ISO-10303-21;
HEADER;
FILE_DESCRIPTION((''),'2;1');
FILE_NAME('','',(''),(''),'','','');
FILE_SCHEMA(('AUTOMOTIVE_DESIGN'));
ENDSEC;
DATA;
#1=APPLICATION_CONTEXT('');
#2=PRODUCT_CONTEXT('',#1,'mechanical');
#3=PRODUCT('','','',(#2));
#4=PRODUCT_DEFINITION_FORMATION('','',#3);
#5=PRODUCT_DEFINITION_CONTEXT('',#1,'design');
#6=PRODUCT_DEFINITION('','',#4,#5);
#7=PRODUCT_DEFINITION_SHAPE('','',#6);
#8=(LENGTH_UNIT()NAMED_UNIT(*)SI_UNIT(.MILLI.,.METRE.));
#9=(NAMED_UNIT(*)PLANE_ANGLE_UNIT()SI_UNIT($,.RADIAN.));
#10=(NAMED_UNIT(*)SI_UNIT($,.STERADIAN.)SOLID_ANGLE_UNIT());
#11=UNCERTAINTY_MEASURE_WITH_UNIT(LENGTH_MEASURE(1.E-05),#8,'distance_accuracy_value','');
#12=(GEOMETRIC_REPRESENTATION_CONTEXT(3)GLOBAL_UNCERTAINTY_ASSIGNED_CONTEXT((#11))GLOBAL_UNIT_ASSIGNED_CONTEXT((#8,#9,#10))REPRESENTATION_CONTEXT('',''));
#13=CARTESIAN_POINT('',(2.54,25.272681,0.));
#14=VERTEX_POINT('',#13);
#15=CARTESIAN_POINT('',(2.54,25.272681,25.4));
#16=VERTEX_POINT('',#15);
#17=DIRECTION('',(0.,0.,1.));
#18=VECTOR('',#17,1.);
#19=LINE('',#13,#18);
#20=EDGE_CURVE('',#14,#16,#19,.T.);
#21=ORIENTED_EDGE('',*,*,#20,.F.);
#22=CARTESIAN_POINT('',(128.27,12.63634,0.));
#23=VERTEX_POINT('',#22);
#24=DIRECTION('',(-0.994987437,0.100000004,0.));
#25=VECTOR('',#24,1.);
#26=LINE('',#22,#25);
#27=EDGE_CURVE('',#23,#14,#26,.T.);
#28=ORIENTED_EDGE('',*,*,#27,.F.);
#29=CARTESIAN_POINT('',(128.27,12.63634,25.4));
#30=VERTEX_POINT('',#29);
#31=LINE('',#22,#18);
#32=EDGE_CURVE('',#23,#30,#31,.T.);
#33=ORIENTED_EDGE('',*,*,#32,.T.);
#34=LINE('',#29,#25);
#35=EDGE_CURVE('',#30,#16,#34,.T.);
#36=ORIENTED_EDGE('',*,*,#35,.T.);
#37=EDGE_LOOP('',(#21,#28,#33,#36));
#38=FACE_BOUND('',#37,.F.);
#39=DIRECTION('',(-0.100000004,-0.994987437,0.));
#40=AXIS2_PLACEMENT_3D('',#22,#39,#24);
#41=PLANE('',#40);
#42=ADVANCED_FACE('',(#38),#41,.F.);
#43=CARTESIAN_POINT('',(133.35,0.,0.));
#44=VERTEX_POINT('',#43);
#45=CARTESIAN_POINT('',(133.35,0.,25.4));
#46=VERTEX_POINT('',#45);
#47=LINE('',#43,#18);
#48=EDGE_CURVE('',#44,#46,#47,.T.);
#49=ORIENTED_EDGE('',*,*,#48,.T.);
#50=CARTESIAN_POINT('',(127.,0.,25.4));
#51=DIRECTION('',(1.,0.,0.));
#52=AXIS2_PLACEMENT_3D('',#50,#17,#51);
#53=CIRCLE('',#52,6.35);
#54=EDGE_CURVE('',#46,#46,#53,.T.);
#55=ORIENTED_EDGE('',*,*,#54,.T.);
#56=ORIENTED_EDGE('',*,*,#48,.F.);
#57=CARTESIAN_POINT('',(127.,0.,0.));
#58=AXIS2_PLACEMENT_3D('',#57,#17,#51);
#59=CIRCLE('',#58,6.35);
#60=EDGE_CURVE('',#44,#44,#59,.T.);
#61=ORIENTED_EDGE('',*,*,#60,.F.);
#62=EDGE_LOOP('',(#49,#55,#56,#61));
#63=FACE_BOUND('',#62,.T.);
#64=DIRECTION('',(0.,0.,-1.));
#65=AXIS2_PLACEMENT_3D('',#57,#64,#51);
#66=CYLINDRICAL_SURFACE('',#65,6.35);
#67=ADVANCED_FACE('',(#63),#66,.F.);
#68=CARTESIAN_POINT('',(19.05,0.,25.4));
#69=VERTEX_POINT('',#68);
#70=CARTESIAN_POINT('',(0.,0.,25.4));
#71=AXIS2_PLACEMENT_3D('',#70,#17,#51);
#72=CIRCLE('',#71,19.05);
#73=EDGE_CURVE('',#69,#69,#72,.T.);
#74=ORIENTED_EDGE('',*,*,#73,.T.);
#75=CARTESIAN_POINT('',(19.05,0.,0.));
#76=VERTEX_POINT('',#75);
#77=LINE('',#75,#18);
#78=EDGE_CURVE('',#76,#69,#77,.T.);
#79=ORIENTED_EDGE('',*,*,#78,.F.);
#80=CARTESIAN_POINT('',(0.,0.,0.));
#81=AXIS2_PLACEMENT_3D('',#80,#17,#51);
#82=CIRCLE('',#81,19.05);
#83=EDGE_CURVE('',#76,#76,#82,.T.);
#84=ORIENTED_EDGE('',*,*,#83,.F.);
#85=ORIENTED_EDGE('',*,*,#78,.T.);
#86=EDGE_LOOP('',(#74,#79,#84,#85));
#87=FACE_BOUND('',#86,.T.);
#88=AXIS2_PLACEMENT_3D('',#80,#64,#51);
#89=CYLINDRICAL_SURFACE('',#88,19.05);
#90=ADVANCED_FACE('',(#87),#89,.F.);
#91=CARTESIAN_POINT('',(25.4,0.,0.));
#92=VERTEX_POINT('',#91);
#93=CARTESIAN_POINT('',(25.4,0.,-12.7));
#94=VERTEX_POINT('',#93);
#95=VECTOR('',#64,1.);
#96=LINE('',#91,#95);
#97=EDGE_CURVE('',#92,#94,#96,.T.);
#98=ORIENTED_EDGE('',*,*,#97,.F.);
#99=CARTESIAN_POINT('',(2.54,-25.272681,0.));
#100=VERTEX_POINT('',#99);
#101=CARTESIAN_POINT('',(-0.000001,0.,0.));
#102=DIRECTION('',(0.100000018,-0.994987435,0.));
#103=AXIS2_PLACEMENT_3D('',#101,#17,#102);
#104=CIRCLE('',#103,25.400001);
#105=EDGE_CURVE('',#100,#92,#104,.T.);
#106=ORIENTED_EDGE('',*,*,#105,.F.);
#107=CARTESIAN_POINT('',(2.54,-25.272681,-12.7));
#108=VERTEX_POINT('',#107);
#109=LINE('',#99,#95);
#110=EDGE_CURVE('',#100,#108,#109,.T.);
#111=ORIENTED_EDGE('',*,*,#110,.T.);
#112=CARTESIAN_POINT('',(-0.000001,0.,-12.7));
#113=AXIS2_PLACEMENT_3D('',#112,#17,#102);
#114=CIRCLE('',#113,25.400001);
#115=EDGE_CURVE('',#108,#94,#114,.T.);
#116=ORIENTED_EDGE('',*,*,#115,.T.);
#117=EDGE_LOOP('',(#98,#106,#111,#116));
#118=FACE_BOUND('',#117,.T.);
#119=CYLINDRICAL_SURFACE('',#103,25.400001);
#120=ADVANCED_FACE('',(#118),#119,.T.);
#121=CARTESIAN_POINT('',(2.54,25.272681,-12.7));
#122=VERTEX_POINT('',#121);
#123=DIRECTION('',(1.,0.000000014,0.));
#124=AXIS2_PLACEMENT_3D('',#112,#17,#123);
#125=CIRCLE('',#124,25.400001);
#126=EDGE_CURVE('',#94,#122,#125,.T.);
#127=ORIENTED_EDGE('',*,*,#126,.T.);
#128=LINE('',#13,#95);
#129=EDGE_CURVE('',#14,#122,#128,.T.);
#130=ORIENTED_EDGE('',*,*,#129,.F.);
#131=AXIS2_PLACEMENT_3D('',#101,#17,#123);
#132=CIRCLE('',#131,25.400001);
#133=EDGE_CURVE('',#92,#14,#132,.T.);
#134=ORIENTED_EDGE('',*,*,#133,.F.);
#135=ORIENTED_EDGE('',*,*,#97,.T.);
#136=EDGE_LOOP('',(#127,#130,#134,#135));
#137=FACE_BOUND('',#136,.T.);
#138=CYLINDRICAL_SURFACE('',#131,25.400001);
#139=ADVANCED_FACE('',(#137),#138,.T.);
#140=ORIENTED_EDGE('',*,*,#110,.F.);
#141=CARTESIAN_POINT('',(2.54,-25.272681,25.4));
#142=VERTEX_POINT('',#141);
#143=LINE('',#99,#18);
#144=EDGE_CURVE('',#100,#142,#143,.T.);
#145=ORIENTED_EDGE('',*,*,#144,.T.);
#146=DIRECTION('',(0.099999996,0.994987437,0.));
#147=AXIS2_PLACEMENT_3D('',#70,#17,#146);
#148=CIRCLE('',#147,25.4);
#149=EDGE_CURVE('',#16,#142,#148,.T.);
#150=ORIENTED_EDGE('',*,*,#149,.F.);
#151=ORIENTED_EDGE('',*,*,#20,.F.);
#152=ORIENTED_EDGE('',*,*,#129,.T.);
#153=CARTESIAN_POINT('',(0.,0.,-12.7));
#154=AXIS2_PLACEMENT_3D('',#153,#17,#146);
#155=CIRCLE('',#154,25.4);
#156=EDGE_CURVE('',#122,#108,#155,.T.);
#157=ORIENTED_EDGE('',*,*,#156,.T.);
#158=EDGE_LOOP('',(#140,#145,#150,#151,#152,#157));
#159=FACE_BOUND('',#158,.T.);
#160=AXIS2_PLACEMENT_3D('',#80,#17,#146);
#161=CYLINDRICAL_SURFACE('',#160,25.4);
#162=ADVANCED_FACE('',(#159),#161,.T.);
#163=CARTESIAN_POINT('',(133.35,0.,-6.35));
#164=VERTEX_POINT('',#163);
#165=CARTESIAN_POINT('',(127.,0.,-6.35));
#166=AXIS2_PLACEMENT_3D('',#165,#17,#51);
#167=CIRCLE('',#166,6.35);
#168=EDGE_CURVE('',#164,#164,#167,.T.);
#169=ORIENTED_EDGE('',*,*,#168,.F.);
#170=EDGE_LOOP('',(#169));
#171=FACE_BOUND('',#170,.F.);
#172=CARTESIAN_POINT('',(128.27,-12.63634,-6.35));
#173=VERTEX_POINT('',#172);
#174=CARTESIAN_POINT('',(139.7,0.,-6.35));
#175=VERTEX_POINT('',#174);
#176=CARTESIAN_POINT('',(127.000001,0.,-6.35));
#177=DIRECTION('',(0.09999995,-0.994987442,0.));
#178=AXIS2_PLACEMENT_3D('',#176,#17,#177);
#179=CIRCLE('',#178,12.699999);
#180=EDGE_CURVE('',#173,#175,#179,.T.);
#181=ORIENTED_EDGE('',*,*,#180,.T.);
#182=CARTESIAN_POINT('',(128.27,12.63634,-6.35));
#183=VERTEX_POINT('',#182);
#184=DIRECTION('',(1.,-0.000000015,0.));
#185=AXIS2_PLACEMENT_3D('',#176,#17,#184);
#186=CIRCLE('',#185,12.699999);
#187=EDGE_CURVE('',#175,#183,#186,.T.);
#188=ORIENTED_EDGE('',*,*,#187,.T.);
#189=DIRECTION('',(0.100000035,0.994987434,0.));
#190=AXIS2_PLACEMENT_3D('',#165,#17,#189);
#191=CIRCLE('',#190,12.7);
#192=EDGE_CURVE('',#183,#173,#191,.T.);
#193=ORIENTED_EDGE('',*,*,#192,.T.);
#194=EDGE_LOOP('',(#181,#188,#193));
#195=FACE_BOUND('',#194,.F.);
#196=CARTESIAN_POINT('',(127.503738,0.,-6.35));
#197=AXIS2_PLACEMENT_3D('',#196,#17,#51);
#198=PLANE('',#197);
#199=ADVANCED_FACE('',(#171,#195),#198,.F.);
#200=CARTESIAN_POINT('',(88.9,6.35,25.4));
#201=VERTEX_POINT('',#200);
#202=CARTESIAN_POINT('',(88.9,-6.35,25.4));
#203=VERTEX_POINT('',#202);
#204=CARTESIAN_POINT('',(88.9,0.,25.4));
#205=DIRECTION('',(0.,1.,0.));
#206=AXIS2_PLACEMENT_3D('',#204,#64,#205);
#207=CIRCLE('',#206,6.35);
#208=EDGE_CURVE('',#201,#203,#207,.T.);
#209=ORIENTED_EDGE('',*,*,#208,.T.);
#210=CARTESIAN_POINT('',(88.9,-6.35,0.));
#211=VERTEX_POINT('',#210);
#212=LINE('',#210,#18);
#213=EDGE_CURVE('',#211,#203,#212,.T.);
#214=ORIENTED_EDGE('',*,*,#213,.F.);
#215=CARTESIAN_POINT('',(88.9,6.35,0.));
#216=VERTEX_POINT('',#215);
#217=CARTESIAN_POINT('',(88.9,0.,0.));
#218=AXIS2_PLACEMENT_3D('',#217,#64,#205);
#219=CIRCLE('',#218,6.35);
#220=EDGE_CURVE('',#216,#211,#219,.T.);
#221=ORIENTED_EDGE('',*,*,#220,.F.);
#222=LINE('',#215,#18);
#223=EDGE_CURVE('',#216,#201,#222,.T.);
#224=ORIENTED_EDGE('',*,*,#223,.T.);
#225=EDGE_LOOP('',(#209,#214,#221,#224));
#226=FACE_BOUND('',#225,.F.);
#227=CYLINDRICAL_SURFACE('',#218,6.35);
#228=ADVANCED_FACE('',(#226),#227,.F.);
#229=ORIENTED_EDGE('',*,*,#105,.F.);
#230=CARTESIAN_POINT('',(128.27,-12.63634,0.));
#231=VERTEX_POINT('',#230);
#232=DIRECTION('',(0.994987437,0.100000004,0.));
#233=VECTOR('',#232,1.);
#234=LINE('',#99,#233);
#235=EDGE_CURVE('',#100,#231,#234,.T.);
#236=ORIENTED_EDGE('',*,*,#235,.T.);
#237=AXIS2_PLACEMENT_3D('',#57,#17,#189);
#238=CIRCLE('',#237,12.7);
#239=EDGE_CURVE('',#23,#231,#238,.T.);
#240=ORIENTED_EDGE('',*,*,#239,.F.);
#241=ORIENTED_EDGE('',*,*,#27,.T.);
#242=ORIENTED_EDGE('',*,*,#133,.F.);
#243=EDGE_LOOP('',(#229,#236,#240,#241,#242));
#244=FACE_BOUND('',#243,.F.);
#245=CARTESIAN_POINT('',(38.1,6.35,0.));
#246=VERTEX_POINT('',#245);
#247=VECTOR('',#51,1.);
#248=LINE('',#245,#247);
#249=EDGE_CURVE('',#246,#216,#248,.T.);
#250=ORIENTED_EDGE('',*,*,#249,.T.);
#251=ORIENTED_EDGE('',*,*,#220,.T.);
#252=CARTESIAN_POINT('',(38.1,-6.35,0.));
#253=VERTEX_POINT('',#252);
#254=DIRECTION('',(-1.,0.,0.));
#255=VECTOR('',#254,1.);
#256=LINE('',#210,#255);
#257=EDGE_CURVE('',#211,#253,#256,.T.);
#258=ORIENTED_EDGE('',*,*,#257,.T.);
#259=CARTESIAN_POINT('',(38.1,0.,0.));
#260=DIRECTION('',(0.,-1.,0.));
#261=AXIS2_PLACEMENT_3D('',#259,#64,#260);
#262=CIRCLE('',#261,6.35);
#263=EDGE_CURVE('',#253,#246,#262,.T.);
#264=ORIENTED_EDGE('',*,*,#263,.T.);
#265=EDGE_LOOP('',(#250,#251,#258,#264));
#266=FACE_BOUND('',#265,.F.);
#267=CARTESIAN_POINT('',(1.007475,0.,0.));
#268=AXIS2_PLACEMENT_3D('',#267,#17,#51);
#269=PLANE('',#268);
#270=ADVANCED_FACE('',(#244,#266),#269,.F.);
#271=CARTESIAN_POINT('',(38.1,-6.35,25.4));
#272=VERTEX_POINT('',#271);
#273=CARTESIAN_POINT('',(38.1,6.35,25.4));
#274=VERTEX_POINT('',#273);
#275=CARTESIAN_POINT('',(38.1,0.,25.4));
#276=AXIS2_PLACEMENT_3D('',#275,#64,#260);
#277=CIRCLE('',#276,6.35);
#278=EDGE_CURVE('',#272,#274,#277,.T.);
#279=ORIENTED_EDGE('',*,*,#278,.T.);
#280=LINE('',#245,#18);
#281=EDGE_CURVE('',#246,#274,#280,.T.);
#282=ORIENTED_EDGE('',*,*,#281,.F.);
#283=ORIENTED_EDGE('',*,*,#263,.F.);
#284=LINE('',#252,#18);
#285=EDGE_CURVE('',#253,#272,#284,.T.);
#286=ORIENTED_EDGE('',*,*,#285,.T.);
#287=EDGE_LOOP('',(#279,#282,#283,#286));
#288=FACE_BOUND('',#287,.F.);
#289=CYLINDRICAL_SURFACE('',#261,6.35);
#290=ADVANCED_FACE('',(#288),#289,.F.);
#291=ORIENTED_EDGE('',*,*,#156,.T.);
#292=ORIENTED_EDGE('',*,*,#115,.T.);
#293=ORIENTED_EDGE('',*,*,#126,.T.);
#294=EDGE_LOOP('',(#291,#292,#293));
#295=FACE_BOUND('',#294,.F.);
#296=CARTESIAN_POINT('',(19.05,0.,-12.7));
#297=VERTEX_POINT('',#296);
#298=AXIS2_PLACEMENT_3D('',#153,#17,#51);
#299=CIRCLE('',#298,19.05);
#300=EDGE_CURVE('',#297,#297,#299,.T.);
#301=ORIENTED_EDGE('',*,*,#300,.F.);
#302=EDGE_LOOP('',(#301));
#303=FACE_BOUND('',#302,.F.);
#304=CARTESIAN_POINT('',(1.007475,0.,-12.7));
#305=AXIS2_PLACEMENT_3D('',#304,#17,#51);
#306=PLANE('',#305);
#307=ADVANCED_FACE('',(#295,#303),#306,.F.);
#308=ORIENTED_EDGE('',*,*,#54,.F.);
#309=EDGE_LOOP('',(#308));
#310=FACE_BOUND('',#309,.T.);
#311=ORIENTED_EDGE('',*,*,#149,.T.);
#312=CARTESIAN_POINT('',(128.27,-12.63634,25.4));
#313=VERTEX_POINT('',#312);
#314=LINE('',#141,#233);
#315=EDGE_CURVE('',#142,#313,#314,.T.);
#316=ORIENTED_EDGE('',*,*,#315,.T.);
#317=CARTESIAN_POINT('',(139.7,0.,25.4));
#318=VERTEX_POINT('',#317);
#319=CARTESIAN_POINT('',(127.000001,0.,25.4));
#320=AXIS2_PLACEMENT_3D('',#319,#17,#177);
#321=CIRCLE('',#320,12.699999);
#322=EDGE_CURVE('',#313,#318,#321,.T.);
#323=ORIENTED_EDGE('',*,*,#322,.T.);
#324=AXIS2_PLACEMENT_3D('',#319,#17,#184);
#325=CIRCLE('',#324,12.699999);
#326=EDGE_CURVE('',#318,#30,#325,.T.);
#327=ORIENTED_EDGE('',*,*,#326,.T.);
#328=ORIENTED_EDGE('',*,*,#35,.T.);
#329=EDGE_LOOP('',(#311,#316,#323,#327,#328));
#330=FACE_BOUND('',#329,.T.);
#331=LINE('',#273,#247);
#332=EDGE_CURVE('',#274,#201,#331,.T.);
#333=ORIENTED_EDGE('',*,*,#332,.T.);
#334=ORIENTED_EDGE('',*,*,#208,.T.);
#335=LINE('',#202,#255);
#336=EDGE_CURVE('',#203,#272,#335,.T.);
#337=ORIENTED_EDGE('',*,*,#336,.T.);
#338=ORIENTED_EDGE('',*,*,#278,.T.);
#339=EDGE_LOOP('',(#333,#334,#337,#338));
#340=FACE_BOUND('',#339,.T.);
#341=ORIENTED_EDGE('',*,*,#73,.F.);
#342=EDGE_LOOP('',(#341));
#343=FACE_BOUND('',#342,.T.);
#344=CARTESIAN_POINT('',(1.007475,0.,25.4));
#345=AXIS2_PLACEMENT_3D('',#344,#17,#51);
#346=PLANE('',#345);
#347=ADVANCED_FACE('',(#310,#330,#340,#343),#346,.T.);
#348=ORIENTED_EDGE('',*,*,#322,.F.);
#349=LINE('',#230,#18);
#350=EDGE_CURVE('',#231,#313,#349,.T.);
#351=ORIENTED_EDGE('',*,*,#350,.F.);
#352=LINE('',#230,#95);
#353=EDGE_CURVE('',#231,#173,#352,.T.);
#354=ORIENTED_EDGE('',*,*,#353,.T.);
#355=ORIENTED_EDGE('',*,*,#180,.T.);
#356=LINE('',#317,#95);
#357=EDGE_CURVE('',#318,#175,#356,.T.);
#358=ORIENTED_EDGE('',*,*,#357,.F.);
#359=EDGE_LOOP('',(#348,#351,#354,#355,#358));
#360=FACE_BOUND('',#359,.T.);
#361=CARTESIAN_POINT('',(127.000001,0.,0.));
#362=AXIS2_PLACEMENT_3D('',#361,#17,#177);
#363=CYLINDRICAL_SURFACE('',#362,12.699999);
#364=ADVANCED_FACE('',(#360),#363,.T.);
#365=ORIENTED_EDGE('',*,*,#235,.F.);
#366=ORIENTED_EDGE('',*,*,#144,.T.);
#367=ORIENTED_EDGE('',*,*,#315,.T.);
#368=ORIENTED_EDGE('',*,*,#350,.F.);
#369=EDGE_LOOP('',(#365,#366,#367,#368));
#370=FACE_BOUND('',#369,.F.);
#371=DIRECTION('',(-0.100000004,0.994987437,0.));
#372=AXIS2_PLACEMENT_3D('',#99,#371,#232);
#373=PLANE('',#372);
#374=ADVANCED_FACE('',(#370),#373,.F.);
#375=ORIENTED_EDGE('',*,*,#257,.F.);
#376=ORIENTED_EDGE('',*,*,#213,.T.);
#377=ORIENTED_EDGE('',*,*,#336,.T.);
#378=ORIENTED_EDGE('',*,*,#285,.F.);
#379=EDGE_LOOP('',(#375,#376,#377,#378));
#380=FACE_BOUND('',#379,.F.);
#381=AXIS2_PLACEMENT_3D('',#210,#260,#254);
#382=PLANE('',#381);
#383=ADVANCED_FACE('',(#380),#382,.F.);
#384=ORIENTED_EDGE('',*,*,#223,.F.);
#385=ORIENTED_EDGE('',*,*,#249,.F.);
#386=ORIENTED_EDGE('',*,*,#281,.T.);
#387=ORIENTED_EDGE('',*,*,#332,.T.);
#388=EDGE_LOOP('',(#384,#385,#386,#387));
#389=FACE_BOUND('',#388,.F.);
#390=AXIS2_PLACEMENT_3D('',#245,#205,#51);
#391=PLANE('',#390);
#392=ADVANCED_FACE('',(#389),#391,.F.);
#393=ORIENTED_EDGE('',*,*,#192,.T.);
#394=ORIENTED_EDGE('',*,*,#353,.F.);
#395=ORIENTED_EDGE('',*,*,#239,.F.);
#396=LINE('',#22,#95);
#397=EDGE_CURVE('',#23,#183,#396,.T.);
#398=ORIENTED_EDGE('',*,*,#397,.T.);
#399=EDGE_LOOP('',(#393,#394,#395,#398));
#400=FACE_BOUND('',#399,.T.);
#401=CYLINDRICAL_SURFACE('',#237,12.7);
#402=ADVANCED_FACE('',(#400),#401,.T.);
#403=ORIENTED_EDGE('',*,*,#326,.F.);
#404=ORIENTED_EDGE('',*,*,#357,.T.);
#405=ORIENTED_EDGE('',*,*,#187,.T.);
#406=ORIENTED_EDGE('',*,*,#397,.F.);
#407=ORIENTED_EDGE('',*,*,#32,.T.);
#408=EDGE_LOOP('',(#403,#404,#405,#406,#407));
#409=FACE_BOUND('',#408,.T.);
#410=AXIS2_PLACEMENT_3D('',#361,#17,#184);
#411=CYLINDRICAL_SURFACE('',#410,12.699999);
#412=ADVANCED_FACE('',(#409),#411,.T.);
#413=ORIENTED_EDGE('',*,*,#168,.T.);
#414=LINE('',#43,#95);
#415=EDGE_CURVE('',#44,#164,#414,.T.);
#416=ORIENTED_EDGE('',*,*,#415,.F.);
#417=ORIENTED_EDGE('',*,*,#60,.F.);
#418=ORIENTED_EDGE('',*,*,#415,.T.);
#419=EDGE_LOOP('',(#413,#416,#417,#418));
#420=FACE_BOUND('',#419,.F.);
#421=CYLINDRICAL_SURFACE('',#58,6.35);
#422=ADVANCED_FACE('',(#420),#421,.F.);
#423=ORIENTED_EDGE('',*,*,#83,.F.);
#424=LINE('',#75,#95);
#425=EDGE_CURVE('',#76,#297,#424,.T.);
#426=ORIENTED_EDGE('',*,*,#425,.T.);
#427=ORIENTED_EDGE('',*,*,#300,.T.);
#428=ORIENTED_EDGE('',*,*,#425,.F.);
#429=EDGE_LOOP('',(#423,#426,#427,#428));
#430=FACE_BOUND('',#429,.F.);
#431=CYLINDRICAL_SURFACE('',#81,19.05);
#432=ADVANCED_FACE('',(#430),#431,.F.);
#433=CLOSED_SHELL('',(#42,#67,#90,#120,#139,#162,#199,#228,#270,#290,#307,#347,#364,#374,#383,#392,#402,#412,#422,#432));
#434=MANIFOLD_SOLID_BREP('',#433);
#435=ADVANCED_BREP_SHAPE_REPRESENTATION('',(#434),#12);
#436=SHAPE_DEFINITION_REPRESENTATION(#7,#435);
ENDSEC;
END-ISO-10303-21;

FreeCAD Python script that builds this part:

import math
import FreeCAD as App
import Part
import Sketcher
Q = App.Units.Quantity

doc = App.newDocument("Part")
body = doc.addObject("PartDesign::Body", "Body")

sketch1 = body.newObject("Sketcher::SketchObject", "Sketch")
sketch1.AttachmentSupport = (doc.getObject("XY_Plane"), [""])
sketch1.MapMode = "FlatFace"
sketch1.addGeometry([
    Part.ArcOfCircle(Part.Circle(App.Vector(0, 0, 0), App.Vector(0, 0, 1), 25.4), math.radians(84.26083), math.radians(275.73917)),
    Part.LineSegment(App.Vector(2.54, -25.272681, 0), App.Vector(128.27, -12.63634, 0)),
    Part.ArcOfCircle(Part.Circle(App.Vector(127.000001, 0, 0), App.Vector(0, 0, 1), 12.699999), math.radians(-84.260832), math.radians(0.000001)),
    Part.ArcOfCircle(Part.Circle(App.Vector(127.000001, 0, 0), App.Vector(0, 0, 1), 12.699999), math.radians(-0.000001), math.radians(84.260832)),
    Part.LineSegment(App.Vector(128.27, 12.63634, 0), App.Vector(2.54, 25.272681, 0)),
    Part.Circle(App.Vector(0, 0, 0), App.Vector(0, 0, 1), 19.05),
    Part.LineSegment(App.Vector(88.9, -6.35, 0), App.Vector(38.1, -6.35, 0)),
    Part.ArcOfCircle(Part.Circle(App.Vector(38.1, 0, 0), App.Vector(0, 0, 1), 6.35), math.radians(90), math.radians(270)),
    Part.LineSegment(App.Vector(38.1, 6.35, 0), App.Vector(88.9, 6.35, 0)),
    Part.ArcOfCircle(Part.Circle(App.Vector(88.9, 0, 0), App.Vector(0, 0, 1), 6.35), math.radians(-90), math.radians(90)),
    Part.Circle(App.Vector(127, 0, 0), App.Vector(0, 0, 1), 6.35),
], False)
sketch1.addConstraint([
    Sketcher.Constraint("Tangent", 0, 2, 1, 1),
    Sketcher.Constraint("Tangent", 1, 2, 2, 1),
    Sketcher.Constraint("Tangent", 2, 2, 3, 1),
    Sketcher.Constraint("Tangent", 3, 2, 4, 1),
    Sketcher.Constraint("Tangent", 4, 2, 0, 1),
    Sketcher.Constraint("Tangent", 6, 2, 7, 2),
    Sketcher.Constraint("Tangent", 7, 1, 8, 1),
    Sketcher.Constraint("Tangent", 8, 2, 9, 2),
    Sketcher.Constraint("Tangent", 9, 1, 6, 1),
    Sketcher.Constraint("Horizontal", 6),
    Sketcher.Constraint("Horizontal", 8),
    Sketcher.Constraint("Coincident", 0, 3, -1, 1),
    Sketcher.Constraint("Coincident", 5, 3, -1, 1),
    Sketcher.Constraint("Coincident", 10, 3, 2, 3),
    Sketcher.Constraint("Equal", 2, 3),
    Sketcher.Constraint("Equal", 9, 10),
    Sketcher.Constraint("PointOnObject", 2, 3, -1),
    Sketcher.Constraint("PointOnObject", 7, 3, -1),
    Sketcher.Constraint("PointOnObject", 2, 2, -1),
    Sketcher.Constraint("Radius", 0, Q("1 in")),
    Sketcher.Constraint("Diameter", 5, Q("1.5 in")),
    Sketcher.Constraint("Diameter", 10, Q("0.5 in")),
    Sketcher.Constraint("Radius", 2, Q("0.5 in")),
    Sketcher.Constraint("DistanceX", 6, 2, 6, 1, Q("2 in")),
    Sketcher.Constraint("DistanceX", -1, 1, 2, 3, Q("5 in")),
    Sketcher.Constraint("DistanceX", 9, 3, 2, 2, Q("2 in")),
])
pad1 = body.newObject("PartDesign::Pad", "Pad")
pad1.Profile = sketch1
pad1.Length = Q("1 in")

sketch2 = body.newObject("Sketcher::SketchObject", "Sketch001")
sketch2.AttachmentSupport = (doc.getObject("XY_Plane"), [""])
sketch2.MapMode = "FlatFace"
sketch2.addGeometry([
    Part.ArcOfCircle(Part.Circle(App.Vector(127.000001, 0, 0), App.Vector(0, 0, 1), 12.699999), math.radians(-0.000001), math.radians(84.260832)),
    Part.ArcOfCircle(Part.Circle(App.Vector(127, 0, 0), App.Vector(0, 0, 1), 12.7), math.radians(84.260827), math.radians(275.739173)),
    Part.ArcOfCircle(Part.Circle(App.Vector(127.000001, 0, 0), App.Vector(0, 0, 1), 12.699999), math.radians(-84.260832), math.radians(0.000001)),
    Part.Circle(App.Vector(127, 0, 0), App.Vector(0, 0, 1), 6.35),
], False)
sketch2.addConstraint([
    Sketcher.Constraint("Tangent", 0, 2, 1, 1),
    Sketcher.Constraint("Tangent", 1, 2, 2, 1),
    Sketcher.Constraint("Tangent", 2, 2, 0, 1),
    Sketcher.Constraint("Coincident", 3, 3, 0, 3),
    Sketcher.Constraint("Symmetric", 0, 2, 1, 2, -1),
    Sketcher.Constraint("PointOnObject", 2, 2, -1),
    Sketcher.Constraint("Diameter", 3, Q("0.5 in")),
    Sketcher.Constraint("Radius", 0, Q("0.5 in")),
    Sketcher.Constraint("DistanceX", -1, 1, 0, 3, Q("5 in")),
    Sketcher.Constraint("DistanceX", -1, 1, 0, 2, Q("5.05 in")),
])
pad2 = body.newObject("PartDesign::Pad", "Pad001")
pad2.Profile = sketch2
pad2.Length = Q("0.25 in")
pad2.Reversed = True

sketch3 = body.newObject("Sketcher::SketchObject", "Sketch002")
sketch3.AttachmentSupport = (doc.getObject("XY_Plane"), [""])
sketch3.MapMode = "FlatFace"
sketch3.addGeometry([
    Part.ArcOfCircle(Part.Circle(App.Vector(0, 0, 0), App.Vector(0, 0, 1), 25.400001), math.radians(-84.260829), math.radians(-0.000001)),
    Part.ArcOfCircle(Part.Circle(App.Vector(0, 0, 0), App.Vector(0, 0, 1), 25.400001), math.radians(0.000001), math.radians(84.260829)),
    Part.ArcOfCircle(Part.Circle(App.Vector(0, 0, 0), App.Vector(0, 0, 1), 25.4), math.radians(84.26083), math.radians(275.73917)),
    Part.Circle(App.Vector(0, 0, 0), App.Vector(0, 0, 1), 19.05),
], False)
sketch3.addConstraint([
    Sketcher.Constraint("Tangent", 0, 2, 1, 1),
    Sketcher.Constraint("Tangent", 1, 2, 2, 1),
    Sketcher.Constraint("Tangent", 2, 2, 0, 1),
    Sketcher.Constraint("Coincident", 0, 3, -1, 1),
    Sketcher.Constraint("Coincident", 3, 3, -1, 1),
    Sketcher.Constraint("PointOnObject", 0, 2, -1),
    Sketcher.Constraint("Vertical", 1, 2, 2, 2),
    Sketcher.Constraint("Radius", 0, Q("1 in")),
    Sketcher.Constraint("Diameter", 3, Q("1.5 in")),
    Sketcher.Constraint("DistanceX", -1, 1, 1, 2, Q("0.1 in")),
])
pad3 = body.newObject("PartDesign::Pad", "Pad002")
pad3.Profile = sketch3
pad3.Length = Q("0.5 in")
pad3.Reversed = True

doc.recompute()
